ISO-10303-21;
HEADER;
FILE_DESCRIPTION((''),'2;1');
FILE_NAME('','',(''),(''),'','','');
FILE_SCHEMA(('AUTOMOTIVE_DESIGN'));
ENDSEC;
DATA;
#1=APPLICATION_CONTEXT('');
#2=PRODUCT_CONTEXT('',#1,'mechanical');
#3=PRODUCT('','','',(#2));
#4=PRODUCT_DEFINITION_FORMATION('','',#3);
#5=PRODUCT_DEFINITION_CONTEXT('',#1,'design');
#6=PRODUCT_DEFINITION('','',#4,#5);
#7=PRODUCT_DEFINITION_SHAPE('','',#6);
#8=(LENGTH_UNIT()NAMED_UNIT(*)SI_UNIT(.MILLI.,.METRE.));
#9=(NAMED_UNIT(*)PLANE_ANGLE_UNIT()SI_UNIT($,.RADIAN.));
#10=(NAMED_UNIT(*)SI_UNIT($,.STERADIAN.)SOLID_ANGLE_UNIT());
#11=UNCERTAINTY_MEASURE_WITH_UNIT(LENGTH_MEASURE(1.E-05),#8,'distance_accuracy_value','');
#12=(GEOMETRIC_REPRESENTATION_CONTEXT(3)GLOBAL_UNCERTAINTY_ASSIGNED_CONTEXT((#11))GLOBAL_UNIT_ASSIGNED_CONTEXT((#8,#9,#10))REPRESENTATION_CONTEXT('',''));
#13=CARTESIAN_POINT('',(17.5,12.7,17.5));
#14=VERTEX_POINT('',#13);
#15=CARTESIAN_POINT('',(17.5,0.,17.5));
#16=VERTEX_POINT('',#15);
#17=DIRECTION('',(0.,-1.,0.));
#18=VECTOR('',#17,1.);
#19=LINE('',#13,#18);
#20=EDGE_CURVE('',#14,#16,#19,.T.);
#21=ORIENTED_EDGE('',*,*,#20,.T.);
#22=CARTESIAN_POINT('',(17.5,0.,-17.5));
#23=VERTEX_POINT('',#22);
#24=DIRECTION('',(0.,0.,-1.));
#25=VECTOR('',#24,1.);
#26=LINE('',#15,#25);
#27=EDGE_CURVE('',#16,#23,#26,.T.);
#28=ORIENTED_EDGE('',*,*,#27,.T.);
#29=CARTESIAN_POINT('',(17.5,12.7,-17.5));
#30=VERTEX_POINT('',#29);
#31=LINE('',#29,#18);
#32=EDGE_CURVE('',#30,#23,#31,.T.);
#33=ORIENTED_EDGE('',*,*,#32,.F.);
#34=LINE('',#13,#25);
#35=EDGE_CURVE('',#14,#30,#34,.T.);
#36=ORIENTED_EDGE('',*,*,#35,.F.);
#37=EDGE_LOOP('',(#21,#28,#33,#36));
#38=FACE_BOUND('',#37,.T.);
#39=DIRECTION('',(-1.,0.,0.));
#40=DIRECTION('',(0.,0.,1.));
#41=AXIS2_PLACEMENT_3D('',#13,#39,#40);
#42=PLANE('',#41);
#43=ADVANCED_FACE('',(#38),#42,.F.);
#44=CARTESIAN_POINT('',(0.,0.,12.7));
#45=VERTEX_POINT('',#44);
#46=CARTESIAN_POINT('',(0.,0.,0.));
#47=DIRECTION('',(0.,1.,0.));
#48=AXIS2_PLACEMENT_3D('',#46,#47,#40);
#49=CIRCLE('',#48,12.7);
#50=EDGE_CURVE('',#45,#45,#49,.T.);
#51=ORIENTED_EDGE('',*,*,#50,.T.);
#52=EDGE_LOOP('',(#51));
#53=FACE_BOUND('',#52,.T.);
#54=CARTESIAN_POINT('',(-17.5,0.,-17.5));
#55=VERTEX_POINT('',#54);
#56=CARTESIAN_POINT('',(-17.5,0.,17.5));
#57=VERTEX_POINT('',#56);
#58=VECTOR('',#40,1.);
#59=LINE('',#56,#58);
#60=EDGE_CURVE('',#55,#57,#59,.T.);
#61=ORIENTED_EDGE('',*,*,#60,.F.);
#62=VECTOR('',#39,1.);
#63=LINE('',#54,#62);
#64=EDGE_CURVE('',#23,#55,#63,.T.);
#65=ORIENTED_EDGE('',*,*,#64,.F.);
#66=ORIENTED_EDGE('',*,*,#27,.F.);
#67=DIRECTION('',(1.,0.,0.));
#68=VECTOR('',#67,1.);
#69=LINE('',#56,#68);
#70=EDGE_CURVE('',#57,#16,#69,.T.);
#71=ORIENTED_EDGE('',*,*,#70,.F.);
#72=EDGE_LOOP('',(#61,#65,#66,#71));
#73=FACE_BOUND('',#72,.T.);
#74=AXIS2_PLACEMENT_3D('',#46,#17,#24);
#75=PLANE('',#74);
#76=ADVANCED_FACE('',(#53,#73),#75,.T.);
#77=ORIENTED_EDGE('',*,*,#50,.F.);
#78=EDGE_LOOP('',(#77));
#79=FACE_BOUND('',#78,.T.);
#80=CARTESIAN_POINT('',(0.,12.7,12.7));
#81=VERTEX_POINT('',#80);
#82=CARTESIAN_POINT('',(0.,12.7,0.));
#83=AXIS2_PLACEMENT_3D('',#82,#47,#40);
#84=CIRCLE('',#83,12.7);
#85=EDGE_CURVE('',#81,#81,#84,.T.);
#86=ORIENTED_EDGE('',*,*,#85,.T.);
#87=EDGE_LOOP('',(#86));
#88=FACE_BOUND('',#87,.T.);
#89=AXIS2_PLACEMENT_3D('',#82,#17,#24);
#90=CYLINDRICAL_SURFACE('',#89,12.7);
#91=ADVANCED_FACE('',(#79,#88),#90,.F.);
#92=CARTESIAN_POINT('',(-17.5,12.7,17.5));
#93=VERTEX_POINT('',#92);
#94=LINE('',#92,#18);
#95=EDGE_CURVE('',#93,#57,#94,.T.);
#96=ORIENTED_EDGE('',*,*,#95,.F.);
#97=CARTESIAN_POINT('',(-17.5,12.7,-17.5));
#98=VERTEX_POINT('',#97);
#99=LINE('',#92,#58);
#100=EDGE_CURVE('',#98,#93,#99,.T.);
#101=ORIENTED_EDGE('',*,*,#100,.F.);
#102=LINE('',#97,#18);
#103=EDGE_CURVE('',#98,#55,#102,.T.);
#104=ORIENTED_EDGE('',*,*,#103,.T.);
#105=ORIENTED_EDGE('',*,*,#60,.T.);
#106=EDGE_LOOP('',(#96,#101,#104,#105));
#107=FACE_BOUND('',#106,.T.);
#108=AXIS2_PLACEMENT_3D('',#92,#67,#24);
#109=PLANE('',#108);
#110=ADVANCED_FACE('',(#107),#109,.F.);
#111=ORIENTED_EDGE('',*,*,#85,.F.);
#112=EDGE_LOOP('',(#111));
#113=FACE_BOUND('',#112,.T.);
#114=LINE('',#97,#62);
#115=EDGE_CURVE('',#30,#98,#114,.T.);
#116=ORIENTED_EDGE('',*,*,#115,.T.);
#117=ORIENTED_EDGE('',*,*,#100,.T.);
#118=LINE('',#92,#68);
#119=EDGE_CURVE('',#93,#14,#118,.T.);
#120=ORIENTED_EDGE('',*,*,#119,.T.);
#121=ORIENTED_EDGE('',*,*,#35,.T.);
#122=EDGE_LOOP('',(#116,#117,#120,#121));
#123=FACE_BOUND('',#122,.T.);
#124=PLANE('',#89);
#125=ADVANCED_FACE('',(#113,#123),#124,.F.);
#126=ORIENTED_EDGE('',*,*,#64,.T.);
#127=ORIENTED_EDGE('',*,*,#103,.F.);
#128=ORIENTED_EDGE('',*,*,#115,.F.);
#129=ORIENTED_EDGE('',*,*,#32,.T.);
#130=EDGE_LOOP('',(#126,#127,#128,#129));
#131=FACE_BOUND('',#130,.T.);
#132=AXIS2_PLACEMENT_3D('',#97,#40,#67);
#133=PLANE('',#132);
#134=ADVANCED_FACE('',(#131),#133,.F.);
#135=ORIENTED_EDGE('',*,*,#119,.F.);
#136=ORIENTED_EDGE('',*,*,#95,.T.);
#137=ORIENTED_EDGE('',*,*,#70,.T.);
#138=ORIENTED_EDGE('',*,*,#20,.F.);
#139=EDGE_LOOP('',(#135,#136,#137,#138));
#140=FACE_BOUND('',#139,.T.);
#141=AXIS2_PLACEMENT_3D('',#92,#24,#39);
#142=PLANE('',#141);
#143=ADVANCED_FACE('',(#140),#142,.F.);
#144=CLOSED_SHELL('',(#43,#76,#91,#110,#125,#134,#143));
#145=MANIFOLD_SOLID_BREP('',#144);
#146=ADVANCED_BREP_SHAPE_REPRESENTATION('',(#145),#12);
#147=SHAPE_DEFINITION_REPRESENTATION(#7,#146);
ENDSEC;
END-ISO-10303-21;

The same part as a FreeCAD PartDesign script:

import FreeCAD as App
import Part
import Sketcher
Q = App.Units.Quantity

doc = App.newDocument("Part")
params = doc.addObject("Spreadsheet::Sheet", "Params")
for row, (alias, value) in enumerate([
    ("sketch1_diameter", "1 in"),
    ("pad1_length", "0.5 in"),
], start=1):
    params.set(f"A{row}", alias)
    params.set(f"B{row}", "=" + value)
    params.setAlias(f"B{row}", alias)

body = doc.addObject("PartDesign::Body", "Body")

sketch1 = doc.addObject("Sketcher::SketchObject", "Sketch")
body.addObject(sketch1)
sketch1.AttachmentSupport = (doc.XZ_Plane, [""])
sketch1.MapMode = "FlatFace"
sketch1.addGeometry(Part.LineSegment(App.Vector(-17.5, -17.5, 0), App.Vector(-17.5, 17.5, 0)), False)
sketch1.addGeometry(Part.LineSegment(App.Vector(-17.5, 17.5, 0), App.Vector(17.5, 17.5, 0)), False)
sketch1.addGeometry(Part.LineSegment(App.Vector(17.5, 17.5, 0), App.Vector(17.5, -17.5, 0)), False)
sketch1.addGeometry(Part.LineSegment(App.Vector(17.5, -17.5, 0), App.Vector(-17.5, -17.5, 0)), False)
sketch1.addGeometry(Part.Circle(App.Vector(0, 0, 0), App.Vector(0, 0, 1), 12.7), False)
sketch1.addConstraint(Sketcher.Constraint("Coincident", 0, 2, 1, 1))
sketch1.addConstraint(Sketcher.Constraint("Coincident", 1, 2, 2, 1))
sketch1.addConstraint(Sketcher.Constraint("Coincident", 2, 2, 3, 1))
sketch1.addConstraint(Sketcher.Constraint("Coincident", 3, 2, 0, 1))
sketch1.addConstraint(Sketcher.Constraint("Vertical", 0))
sketch1.addConstraint(Sketcher.Constraint("Horizontal", 1))
sketch1.addConstraint(Sketcher.Constraint("Vertical", 2))
sketch1.addConstraint(Sketcher.Constraint("Horizontal", 3))
sketch1.addConstraint(Sketcher.Constraint("Coincident", 4, 3, -1, 1))
sketch1.addConstraint(Sketcher.Constraint("Symmetric", 0, 2, 2, 2, -1, 1))
sketch1.addConstraint(Sketcher.Constraint("Equal", 3, 0))
sketch1.addConstraint(Sketcher.Constraint("Diameter", 4, Q("1 in")))
sketch1.addConstraint(Sketcher.Constraint("DistanceX", 1, 1, 1, 2, 35.0))
sketch1.setExpression("Constraints[11]", "Params.sketch1_diameter")
pad1 = doc.addObject("PartDesign::Pad", "Pad")
body.addObject(pad1)
pad1.Profile = sketch1
pad1.setExpression("Length", "Params.pad1_length")
pad1.Reversed = True

doc.recompute()
